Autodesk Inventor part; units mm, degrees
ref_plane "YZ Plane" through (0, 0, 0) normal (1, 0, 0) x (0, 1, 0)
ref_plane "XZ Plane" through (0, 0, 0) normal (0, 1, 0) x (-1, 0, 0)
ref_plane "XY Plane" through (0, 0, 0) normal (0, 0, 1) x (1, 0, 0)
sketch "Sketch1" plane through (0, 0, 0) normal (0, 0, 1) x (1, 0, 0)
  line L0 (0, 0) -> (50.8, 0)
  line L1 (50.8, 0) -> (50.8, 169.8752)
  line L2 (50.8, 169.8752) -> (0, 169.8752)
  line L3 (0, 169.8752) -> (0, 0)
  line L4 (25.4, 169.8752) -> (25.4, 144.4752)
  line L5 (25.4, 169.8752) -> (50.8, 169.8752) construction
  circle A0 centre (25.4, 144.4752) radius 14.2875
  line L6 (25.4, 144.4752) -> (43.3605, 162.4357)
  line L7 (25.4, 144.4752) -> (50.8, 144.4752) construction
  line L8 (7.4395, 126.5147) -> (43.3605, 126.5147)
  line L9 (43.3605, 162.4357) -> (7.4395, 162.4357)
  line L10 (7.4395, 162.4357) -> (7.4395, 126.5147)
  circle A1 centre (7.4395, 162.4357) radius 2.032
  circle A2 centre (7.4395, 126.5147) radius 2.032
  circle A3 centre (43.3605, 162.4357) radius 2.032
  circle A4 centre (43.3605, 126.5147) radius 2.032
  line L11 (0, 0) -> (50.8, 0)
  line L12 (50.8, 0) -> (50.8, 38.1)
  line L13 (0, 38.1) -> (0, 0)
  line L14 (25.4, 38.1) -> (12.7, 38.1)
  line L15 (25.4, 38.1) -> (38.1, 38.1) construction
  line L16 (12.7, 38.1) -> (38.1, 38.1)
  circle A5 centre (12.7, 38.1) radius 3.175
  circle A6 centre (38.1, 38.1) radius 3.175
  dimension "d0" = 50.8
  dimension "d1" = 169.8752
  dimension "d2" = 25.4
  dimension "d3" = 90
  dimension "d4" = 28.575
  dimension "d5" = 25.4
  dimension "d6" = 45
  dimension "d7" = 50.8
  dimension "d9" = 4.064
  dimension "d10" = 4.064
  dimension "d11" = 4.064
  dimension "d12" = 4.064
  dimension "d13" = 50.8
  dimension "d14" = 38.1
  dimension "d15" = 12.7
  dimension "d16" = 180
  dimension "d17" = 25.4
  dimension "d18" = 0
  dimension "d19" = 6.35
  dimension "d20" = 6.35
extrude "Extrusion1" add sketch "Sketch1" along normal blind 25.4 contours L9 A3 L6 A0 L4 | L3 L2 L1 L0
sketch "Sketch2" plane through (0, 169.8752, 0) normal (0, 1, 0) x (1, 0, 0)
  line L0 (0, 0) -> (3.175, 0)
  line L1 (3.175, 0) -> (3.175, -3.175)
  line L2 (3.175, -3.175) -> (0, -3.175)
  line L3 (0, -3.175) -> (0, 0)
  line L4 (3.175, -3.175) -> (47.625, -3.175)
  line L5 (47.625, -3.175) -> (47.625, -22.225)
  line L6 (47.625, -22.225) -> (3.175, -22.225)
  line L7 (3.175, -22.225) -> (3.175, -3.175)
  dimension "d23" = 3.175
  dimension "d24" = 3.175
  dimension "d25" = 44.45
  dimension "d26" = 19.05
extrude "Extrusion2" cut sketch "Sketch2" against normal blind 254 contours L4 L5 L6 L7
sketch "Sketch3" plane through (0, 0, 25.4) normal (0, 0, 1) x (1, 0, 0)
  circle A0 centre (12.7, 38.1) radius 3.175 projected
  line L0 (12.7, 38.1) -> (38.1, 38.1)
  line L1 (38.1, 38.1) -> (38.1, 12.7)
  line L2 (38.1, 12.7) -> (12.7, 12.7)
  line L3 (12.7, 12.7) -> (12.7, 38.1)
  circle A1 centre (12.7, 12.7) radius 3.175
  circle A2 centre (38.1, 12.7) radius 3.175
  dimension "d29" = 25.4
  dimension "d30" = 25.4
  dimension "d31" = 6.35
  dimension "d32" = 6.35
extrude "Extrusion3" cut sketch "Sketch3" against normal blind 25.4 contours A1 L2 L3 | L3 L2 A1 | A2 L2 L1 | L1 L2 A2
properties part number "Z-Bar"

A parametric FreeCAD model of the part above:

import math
import FreeCAD as App
import Part
import Sketcher

V = App.Vector
Q = App.Units.Quantity

doc = App.newDocument("Part")
params = doc.addObject("Spreadsheet::Sheet", "Params")
for row, (alias, value) in enumerate([
    ("sketch1_diameter", "0.16 in"),
    ("sketch1_diameter2", "0.25 in"),
    ("sketch1_width", "2 in"),
    ("sketch1_diameter3", "1.125 in"),
    ("sketch1_height", "6.688 in"),
    ("pad1_length", "1 in"),
    ("sketch2_width", "1.75 in"),
    ("sketch2_height", "0.75 in"),
    ("pocket1_length", "10 in"),
    ("sketch3_diameter", "0.25 in"),
    ("pocket2_length", "1 in"),
], start=1):
    params.set(f"A{row}", alias)
    params.set(f"B{row}", "=" + value)
    params.setAlias(f"B{row}", alias)

body = doc.addObject("PartDesign::Body", "Body")

# Sketch on XY plane
sketch1 = doc.addObject("Sketcher::SketchObject", "Sketch")
body.addObject(sketch1)
sketch1.AttachmentSupport = (doc.XY_Plane, [""])
sketch1.MapMode = "FlatFace"
sketch1.addGeometry(Part.LineSegment(V(0, 0, 0), V(50.8, 0, 0)), False)
sketch1.addGeometry(Part.LineSegment(V(50.8, 0, 0), V(50.8, 169.9, 0)), False)
sketch1.addGeometry(Part.LineSegment(V(50.8, 169.9, 0), V(25.4, 169.9, 0)), False)
sketch1.addGeometry(Part.LineSegment(V(25.4, 169.9, 0), V(0, 169.9, 0)), False)
sketch1.addGeometry(Part.LineSegment(V(0, 169.9, 0), V(0, 0, 0)), False)
sketch1.addGeometry(Part.Circle(V(43.4, 162.4, 0), V(0, 0, 1), 2), False)
sketch1.addGeometry(Part.Circle(V(25.4, 144.5, 0), V(0, 0, 1), 14.3), False)
sketch1.addGeometry(Part.Circle(V(12.7, 38.1, 0), V(0, 0, 1), 3.2), False)
sketch1.addGeometry(Part.Circle(V(38.1, 38.1, 0), V(0, 0, 1), 3.2), False)
sketch1.addGeometry(Part.ArcOfCircle(Part.Circle(V(7.4, 126.5, 0), V(0, 0, 1), 2), math.radians(90), math.radians(360)), False)
sketch1.addGeometry(Part.ArcOfCircle(Part.Circle(V(7.4, 126.5, 0), V(0, 0, 1), 2), math.radians(0), math.radians(90)), False)
sketch1.addGeometry(Part.ArcOfCircle(Part.Circle(V(7.4, 162.4, 0), V(0, 0, 1), 2), math.radians(0), math.radians(270)), False)
sketch1.addGeometry(Part.ArcOfCircle(Part.Circle(V(7.4, 162.4, 0), V(0, 0, 1), 2), math.radians(-90), math.radians(0)), False)
sketch1.addGeometry(Part.Circle(V(43.4, 126.5, 0), V(0, 0, 1), 2), False)
sketch1.addConstraint(Sketcher.Constraint("Coincident", 0, 2, 1, 1))
sketch1.addConstraint(Sketcher.Constraint("Coincident", 1, 2, 2, 1))
sketch1.addConstraint(Sketcher.Constraint("Coincident", 2, 2, 3, 1))
sketch1.addConstraint(Sketcher.Constraint("Coincident", 3, 2, 4, 1))
sketch1.addConstraint(Sketcher.Constraint("Coincident", 4, 2, 0, 1))
sketch1.addConstraint(Sketcher.Constraint("Tangent", 9, 1, 10, 2))
sketch1.addConstraint(Sketcher.Constraint("Coincident", 10, 1, 9, 2))
sketch1.addConstraint(Sketcher.Constraint("Tangent", 11, 1, 12, 2))
sketch1.addConstraint(Sketcher.Constraint("Coincident", 12, 1, 11, 2))
sketch1.addConstraint(Sketcher.Constraint("Horizontal", 0))
sketch1.addConstraint(Sketcher.Constraint("Vertical", 1))
sketch1.addConstraint(Sketcher.Constraint("Horizontal", 2))
sketch1.addConstraint(Sketcher.Constraint("Horizontal", 3))
sketch1.addConstraint(Sketcher.Constraint("Vertical", 4))
sketch1.addConstraint(Sketcher.Constraint("Coincident", 4, 2, -1, 1))
sketch1.addConstraint(Sketcher.Constraint("Equal", 7, 8))
sketch1.addConstraint(Sketcher.Constraint("Equal", 5, 9))
sketch1.addConstraint(Sketcher.Constraint("Equal", 10, 11))
sketch1.addConstraint(Sketcher.Constraint("Equal", 12, 13))
sketch1.addConstraint(Sketcher.Constraint("Horizontal", 7, 3, 8, 3))
sketch1.addConstraint(Sketcher.Constraint("Horizontal", 5, 3, 11, 3))
sketch1.addConstraint(Sketcher.Constraint("Horizontal", 10, 3, 13, 3))
sketch1.addConstraint(Sketcher.Constraint("Horizontal", 13, 3, 10, 1))
sketch1.addConstraint(Sketcher.Constraint("Horizontal", 12, 3, 11, 1))
sketch1.addConstraint(Sketcher.Constraint("Vertical", 10, 3, 11, 3))
sketch1.addConstraint(Sketcher.Constraint("Vertical", 5, 3, 13, 3))
sketch1.addConstraint(Sketcher.Constraint("Vertical", 6, 3, 2, 2))
sketch1.addConstraint(Sketcher.Constraint("Vertical", 12, 3, 9, 1))
sketch1.addConstraint(Sketcher.Constraint("Vertical", 9, 1, 12, 1))
sketch1.addConstraint(Sketcher.Constraint("Equal", 2, 3))
sketch1.addConstraint(Sketcher.Constraint("Diameter", 5, Q("0.16 in")))
sketch1.addConstraint(Sketcher.Constraint("Diameter", 7, Q("0.25 in")))
sketch1.addConstraint(Sketcher.Constraint("DistanceX", 0, 1, 0, 2, Q("2 in")))
sketch1.addConstraint(Sketcher.Constraint("Diameter", 6, Q("1.125 in")))
sketch1.addConstraint(Sketcher.Constraint("DistanceX", 7, 3, 8, 3, Q("1 in")))
sketch1.addConstraint(Sketcher.Constraint("DistanceY", 6, 3, 1, 2, Q("1 in")))
sketch1.addConstraint(Sketcher.Constraint("DistanceX", -1, 1, 7, 3, Q("0.5 in")))
sketch1.addConstraint(Sketcher.Constraint("DistanceY", -1, 1, 7, 3, Q("1.5 in")))
sketch1.addConstraint(Sketcher.Constraint("DistanceY", 1, 1, 1, 2, Q("6.688 in")))
sketch1.addConstraint(Sketcher.Constraint("DistanceX", -1, 1, 5, 3, Q("1.7071 in")))
sketch1.addConstraint(Sketcher.Constraint("DistanceY", -1, 1, 5, 3, Q("6.3951 in")))
sketch1.addConstraint(Sketcher.Constraint("DistanceX", -1, 1, 9, 3, Q("0.2929 in")))
sketch1.addConstraint(Sketcher.Constraint("DistanceY", -1, 1, 9, 3, Q("4.9809 in")))
sketch1.setExpression("Constraints[30]", "Params.sketch1_diameter")
sketch1.setExpression("Constraints[31]", "Params.sketch1_diameter2")
sketch1.setExpression("Constraints[32]", "Params.sketch1_width")
sketch1.setExpression("Constraints[33]", "Params.sketch1_diameter3")
sketch1.setExpression("Constraints[38]", "Params.sketch1_height")
pad1 = doc.addObject("PartDesign::Pad", "Pad")
body.addObject(pad1)
pad1.Profile = sketch1
pad1.setExpression("Length", "Params.pad1_length")

# Sketch on XZ plane
sketch2 = doc.addObject("Sketcher::SketchObject", "Sketch001")
body.addObject(sketch2)
sketch2.AttachmentSupport = (doc.XZ_Plane, [""])
sketch2.MapMode = "FlatFace"
sketch2.AttachmentOffset = App.Placement(V(0, 0, -6.688 * 25.4), App.Rotation())
sketch2.addGeometry(Part.LineSegment(V(48, 3, 0), V(3, 3, 0)), False)
sketch2.addGeometry(Part.LineSegment(V(3, 3, 0), V(3, 22, 0)), False)
sketch2.addGeometry(Part.LineSegment(V(3, 22, 0), V(48, 22, 0)), False)
sketch2.addGeometry(Part.LineSegment(V(48, 22, 0), V(48, 3, 0)), False)
sketch2.addConstraint(Sketcher.Constraint("Coincident", 0, 2, 1, 1))
sketch2.addConstraint(Sketcher.Constraint("Coincident", 1, 2, 2, 1))
sketch2.addConstraint(Sketcher.Constraint("Coincident", 2, 2, 3, 1))
sketch2.addConstraint(Sketcher.Constraint("Coincident", 3, 2, 0, 1))
sketch2.addConstraint(Sketcher.Constraint("Horizontal", 0))
sketch2.addConstraint(Sketcher.Constraint("Vertical", 1))
sketch2.addConstraint(Sketcher.Constraint("Horizontal", 2))
sketch2.addConstraint(Sketcher.Constraint("Vertical", 3))
sketch2.addConstraint(Sketcher.Constraint("DistanceX", 0, 2, 0, 1, Q("1.75 in")))
sketch2.addConstraint(Sketcher.Constraint("DistanceY", 1, 1, 1, 2, Q("0.75 in")))
sketch2.addConstraint(Sketcher.Constraint("DistanceX", -1, 1, 0, 2, Q("0.125 in")))
sketch2.addConstraint(Sketcher.Constraint("DistanceY", -1, 1, 0, 2, Q("0.125 in")))
sketch2.setExpression("Constraints[8]", "Params.sketch2_width")
sketch2.setExpression("Constraints[9]", "Params.sketch2_height")
pocket1 = doc.addObject("PartDesign::Pocket", "Pocket")
body.addObject(pocket1)
pocket1.Profile = sketch2
pocket1.setExpression("Length", "Params.pocket1_length")
pocket1.Reversed = True

# Sketch on XY plane
sketch3 = doc.addObject("Sketcher::SketchObject", "Sketch002")
body.addObject(sketch3)
sketch3.AttachmentSupport = (doc.XY_Plane, [""])
sketch3.MapMode = "FlatFace"
sketch3.AttachmentOffset = App.Placement(V(0, 0, 1 * 25.4), App.Rotation())
sketch3.addGeometry(Part.Circle(V(12.7, 12.7, 0), V(0, 0, 1), 3.2), False)
sketch3.addGeometry(Part.Circle(V(38.1, 12.7, 0), V(0, 0, 1), 3.2), False)
sketch3.addConstraint(Sketcher.Constraint("Equal", 0, 1))
sketch3.addConstraint(Sketcher.Constraint("Horizontal", 0, 3, 1, 3))
sketch3.addConstraint(Sketcher.Constraint("Diameter", 0, Q("0.25 in")))
sketch3.addConstraint(Sketcher.Constraint("DistanceX", 0, 3, 1, 3, Q("1 in")))
sketch3.addConstraint(Sketcher.Constraint("DistanceX", -1, 1, 0, 3, Q("0.5 in")))
sketch3.addConstraint(Sketcher.Constraint("DistanceY", -1, 1, 0, 3, Q("0.5 in")))
sketch3.setExpression("Constraints[2]", "Params.sketch3_diameter")
pocket2 = doc.addObject("PartDesign::Pocket", "Pocket001")
body.addObject(pocket2)
pocket2.Profile = sketch3
pocket2.setExpression("Length", "Params.pocket2_length")

doc.recompute()
